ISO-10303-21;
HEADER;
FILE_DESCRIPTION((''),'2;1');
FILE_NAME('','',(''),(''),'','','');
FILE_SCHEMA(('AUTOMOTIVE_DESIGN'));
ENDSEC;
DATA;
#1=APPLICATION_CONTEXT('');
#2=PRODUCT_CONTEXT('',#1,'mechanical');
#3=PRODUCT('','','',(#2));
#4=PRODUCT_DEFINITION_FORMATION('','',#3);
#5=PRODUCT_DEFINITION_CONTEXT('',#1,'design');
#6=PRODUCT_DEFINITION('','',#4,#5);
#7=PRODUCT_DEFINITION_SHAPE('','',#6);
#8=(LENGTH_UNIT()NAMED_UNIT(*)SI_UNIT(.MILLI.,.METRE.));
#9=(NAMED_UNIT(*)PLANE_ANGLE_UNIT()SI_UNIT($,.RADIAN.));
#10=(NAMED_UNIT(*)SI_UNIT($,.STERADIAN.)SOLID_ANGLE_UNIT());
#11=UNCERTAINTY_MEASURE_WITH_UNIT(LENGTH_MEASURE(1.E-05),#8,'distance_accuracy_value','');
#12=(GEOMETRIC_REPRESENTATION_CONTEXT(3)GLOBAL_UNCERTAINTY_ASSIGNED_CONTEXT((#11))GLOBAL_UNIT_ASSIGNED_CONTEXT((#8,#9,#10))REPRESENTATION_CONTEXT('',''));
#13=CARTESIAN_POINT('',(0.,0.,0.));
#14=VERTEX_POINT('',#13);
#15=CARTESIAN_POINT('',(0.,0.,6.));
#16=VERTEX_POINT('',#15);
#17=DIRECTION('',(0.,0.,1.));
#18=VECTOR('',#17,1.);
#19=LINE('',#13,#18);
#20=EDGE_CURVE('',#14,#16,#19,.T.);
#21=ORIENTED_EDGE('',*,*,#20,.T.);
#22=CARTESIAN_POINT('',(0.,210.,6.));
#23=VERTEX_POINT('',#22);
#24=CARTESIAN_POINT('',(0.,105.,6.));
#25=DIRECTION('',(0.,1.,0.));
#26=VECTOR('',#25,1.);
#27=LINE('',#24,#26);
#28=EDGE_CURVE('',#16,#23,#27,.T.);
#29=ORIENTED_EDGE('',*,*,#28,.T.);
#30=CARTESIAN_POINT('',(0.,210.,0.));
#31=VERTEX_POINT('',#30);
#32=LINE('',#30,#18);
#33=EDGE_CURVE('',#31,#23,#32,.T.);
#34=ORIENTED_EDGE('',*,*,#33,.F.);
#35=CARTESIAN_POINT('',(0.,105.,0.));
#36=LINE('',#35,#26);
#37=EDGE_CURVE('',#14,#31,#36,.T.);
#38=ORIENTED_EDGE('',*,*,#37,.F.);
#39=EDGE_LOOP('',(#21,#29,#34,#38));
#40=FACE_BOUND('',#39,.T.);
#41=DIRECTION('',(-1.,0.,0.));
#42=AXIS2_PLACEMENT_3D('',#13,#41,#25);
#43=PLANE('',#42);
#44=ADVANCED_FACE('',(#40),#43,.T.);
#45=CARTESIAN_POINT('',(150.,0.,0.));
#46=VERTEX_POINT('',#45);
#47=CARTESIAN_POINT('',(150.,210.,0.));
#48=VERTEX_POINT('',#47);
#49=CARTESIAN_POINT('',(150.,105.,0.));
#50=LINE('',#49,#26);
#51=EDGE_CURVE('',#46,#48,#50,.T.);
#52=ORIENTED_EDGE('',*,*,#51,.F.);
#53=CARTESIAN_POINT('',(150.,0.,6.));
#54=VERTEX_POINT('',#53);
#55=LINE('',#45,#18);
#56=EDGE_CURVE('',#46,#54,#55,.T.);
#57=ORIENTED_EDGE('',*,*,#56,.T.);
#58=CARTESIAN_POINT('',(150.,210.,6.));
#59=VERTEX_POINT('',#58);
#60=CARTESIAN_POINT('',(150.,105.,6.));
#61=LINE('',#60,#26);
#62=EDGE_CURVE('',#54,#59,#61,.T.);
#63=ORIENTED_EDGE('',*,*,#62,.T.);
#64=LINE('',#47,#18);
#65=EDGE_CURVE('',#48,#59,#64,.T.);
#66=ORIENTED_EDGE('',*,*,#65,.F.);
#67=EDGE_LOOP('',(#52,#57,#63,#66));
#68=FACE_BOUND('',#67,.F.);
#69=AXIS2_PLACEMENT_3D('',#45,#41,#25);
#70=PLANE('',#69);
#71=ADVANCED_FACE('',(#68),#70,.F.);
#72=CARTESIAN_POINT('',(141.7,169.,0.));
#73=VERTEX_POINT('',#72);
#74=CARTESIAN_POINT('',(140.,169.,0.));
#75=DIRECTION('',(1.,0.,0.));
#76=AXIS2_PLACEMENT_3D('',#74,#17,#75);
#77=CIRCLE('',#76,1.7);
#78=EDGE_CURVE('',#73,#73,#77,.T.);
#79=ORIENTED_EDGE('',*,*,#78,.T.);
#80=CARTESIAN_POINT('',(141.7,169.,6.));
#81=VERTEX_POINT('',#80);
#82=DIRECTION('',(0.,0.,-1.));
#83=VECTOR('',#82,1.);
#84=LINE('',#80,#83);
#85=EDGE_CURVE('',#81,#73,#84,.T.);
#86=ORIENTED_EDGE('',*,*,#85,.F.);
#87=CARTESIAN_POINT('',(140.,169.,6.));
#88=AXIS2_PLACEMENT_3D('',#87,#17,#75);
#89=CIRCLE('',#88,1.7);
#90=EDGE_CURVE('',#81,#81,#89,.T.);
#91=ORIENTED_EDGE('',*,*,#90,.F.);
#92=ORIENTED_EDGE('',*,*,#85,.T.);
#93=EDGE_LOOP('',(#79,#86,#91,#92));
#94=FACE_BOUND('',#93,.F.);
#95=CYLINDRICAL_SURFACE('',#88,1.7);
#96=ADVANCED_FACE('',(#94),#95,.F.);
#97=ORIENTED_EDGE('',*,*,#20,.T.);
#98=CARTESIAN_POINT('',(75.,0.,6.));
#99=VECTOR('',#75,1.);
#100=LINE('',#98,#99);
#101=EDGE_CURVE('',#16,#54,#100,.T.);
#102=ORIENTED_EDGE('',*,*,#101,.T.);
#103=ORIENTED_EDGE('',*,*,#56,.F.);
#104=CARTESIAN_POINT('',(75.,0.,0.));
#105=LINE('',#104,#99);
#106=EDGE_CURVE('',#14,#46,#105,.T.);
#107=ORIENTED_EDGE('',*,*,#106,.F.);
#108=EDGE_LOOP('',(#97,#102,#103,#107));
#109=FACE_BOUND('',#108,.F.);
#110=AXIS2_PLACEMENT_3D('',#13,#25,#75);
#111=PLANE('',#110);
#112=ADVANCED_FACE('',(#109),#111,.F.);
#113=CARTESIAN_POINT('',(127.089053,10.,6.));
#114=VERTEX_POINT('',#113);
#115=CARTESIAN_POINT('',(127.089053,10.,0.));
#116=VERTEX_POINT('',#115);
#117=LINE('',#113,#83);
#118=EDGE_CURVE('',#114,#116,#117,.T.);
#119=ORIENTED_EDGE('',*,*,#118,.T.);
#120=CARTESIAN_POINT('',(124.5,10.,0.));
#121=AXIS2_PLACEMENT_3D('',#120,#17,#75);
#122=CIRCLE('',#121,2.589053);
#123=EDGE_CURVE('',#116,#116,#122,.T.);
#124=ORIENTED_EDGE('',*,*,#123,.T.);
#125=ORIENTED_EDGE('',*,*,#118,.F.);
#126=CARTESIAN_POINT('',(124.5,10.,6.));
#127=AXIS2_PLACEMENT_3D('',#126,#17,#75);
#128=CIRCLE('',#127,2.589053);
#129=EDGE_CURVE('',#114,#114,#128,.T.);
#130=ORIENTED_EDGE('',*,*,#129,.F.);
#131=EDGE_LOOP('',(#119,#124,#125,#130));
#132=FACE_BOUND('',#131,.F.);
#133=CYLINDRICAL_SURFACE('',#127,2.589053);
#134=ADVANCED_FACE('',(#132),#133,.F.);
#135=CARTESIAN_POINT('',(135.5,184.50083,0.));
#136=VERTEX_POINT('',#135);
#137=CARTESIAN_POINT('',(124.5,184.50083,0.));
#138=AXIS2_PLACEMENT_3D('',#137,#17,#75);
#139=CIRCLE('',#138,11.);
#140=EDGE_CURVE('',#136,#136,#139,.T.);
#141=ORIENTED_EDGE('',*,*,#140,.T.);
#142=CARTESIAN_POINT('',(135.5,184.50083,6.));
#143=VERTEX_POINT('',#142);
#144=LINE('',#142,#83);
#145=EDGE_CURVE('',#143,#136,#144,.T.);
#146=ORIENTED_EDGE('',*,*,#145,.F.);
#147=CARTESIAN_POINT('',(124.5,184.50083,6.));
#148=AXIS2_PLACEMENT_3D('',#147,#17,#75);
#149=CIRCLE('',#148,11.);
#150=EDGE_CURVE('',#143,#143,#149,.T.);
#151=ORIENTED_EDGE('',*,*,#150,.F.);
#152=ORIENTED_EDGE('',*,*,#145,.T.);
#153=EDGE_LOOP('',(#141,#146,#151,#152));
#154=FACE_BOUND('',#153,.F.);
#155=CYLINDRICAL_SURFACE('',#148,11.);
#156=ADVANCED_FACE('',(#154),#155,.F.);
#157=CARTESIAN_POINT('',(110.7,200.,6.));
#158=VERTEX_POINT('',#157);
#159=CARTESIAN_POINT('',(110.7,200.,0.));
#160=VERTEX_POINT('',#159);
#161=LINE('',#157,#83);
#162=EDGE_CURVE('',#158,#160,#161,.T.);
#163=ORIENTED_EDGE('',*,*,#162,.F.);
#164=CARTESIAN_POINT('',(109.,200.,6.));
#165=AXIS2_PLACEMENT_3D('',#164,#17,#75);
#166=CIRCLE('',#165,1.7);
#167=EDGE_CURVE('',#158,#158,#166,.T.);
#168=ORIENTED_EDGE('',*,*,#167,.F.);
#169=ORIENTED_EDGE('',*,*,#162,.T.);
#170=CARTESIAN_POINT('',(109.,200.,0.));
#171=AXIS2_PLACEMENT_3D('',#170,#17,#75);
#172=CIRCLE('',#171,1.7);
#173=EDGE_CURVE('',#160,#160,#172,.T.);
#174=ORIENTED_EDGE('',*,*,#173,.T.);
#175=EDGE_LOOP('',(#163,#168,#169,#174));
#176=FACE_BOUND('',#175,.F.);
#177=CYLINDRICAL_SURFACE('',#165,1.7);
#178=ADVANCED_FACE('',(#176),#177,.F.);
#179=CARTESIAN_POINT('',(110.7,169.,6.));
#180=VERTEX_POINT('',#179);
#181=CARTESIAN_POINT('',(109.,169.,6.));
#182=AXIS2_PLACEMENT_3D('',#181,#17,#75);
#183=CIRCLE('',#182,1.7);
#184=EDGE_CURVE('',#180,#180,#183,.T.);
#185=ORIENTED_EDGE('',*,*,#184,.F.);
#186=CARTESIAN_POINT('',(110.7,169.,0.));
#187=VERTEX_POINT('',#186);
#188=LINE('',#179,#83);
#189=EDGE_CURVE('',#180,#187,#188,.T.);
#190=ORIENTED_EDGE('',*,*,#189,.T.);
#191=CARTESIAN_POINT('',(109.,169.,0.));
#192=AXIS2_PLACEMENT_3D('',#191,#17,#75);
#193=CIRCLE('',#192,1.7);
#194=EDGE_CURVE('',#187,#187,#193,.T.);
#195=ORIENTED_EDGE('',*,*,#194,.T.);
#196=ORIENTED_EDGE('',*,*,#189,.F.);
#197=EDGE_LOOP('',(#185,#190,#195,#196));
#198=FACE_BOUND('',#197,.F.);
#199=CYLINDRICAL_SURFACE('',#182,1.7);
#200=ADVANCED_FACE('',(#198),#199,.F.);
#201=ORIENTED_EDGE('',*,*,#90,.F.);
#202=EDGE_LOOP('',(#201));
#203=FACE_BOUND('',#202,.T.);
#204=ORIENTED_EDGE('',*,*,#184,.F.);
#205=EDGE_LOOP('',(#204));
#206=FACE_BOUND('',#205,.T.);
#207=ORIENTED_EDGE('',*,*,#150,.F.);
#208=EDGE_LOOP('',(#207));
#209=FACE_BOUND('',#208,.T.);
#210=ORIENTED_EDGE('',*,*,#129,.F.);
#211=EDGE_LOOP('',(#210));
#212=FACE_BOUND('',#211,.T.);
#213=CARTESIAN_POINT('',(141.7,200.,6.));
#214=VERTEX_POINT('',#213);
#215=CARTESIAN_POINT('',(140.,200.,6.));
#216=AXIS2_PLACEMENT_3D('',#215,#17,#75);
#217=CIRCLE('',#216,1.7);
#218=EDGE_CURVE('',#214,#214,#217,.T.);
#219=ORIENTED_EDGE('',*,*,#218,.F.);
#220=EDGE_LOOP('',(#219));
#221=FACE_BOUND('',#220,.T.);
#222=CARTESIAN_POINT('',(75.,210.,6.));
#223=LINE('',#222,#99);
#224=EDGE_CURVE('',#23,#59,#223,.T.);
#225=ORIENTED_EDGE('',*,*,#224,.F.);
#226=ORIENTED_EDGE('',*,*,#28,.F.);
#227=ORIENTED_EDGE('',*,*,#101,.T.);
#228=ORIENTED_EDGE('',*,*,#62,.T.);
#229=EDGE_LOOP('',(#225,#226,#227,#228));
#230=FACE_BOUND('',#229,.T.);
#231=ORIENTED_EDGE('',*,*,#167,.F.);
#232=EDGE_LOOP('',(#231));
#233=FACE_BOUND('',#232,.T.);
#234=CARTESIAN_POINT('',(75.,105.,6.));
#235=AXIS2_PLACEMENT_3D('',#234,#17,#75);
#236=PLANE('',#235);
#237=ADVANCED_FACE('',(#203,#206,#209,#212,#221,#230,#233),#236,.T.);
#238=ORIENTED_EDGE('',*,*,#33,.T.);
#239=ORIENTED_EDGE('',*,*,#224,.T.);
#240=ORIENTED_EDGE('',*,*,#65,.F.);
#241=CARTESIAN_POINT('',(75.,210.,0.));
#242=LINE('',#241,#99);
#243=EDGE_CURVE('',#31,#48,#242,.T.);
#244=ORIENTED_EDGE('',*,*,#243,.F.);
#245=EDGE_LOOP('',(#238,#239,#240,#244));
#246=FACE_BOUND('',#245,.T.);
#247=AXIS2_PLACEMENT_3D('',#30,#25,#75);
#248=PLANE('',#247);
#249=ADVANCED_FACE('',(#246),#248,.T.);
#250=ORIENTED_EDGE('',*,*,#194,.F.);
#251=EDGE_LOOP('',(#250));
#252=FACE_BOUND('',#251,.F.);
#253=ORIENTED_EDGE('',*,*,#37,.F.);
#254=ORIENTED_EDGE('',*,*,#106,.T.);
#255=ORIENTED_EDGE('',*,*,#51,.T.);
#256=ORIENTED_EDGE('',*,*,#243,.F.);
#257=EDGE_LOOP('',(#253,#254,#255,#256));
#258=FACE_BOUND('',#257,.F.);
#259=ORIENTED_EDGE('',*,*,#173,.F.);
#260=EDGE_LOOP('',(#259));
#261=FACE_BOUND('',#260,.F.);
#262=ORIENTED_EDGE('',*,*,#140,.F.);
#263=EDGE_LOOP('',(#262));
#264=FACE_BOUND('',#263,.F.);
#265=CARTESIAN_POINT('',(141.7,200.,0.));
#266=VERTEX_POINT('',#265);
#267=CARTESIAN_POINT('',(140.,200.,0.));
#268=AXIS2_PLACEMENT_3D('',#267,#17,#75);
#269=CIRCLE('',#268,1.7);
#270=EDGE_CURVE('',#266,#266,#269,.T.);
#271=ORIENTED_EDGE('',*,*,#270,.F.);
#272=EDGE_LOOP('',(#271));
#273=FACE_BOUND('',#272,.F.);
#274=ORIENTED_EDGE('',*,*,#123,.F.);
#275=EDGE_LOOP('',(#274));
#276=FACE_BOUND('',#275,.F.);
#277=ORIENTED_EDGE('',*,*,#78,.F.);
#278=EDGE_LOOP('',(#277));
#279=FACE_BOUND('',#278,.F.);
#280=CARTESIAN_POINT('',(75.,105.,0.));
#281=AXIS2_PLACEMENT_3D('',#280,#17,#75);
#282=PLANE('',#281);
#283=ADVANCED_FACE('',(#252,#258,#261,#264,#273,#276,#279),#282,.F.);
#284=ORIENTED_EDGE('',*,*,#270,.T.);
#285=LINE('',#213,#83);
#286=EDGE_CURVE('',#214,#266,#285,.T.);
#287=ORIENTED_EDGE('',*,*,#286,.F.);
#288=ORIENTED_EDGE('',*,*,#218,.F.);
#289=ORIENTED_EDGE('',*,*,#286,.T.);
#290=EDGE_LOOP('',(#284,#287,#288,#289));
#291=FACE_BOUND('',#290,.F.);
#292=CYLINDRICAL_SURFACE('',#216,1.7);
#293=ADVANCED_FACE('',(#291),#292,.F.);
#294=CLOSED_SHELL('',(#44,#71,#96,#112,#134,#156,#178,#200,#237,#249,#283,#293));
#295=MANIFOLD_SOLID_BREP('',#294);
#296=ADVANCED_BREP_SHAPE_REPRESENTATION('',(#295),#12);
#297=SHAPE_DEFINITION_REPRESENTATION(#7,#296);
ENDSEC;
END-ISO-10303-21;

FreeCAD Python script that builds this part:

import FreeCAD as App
import Part
import Sketcher
Q = App.Units.Quantity


def add_polygon(sketch, points):
    """Adds a closed chain of lines whose ends are joined by coincident constraints."""
    first, n = sketch.GeometryCount, len(points)
    for a, b in zip(points, points[1:] + points[:1]):
        sketch.addGeometry(Part.LineSegment(App.Vector(*a, 0), App.Vector(*b, 0)), False)
    for i in range(n):
        sketch.addConstraint(Sketcher.Constraint("Coincident", first + i, 2, first + (i + 1) % n, 1))

doc = App.newDocument("Part")
body = doc.addObject("PartDesign::Body", "Body")

sketch1 = doc.addObject("Sketcher::SketchObject", "Sketch")
body.addObject(sketch1)
sketch1.AttachmentSupport = (doc.XY_Plane, [""])
sketch1.MapMode = "FlatFace"
add_polygon(sketch1, [(0, 210), (0, 0), (150, 0), (150, 210)])
sketch1.addConstraint(Sketcher.Constraint("Vertical", 0))
sketch1.addConstraint(Sketcher.Constraint("Horizontal", 1))
sketch1.addConstraint(Sketcher.Constraint("Vertical", 2))
sketch1.addConstraint(Sketcher.Constraint("Horizontal", 3))
sketch1.addConstraint(Sketcher.Constraint("Coincident", 0, 2, -1, 1))
sketch1.addConstraint(Sketcher.Constraint("DistanceX", 1, 1, 1, 2, Q("150 mm")))
sketch1.addConstraint(Sketcher.Constraint("DistanceY", 0, 2, 0, 1, Q("210 mm")))
pad1 = doc.addObject("PartDesign::Pad", "Pad")
body.addObject(pad1)
pad1.Profile = sketch1
pad1.Length = 6

sketch2 = doc.addObject("Sketcher::SketchObject", "Sketch001")
body.addObject(sketch2)
sketch2.AttachmentSupport = (doc.XY_Plane, [""])
sketch2.MapMode = "FlatFace"
sketch2.AttachmentOffset = App.Placement(App.Vector(0, 0, 6), App.Rotation())
sketch2.addGeometry(Part.Circle(App.Vector(140, 200, 0), App.Vector(0, 0, 1), 1.7), False)
sketch2.addGeometry(Part.Circle(App.Vector(109, 200, 0), App.Vector(0, 0, 1), 1.7), False)
sketch2.addGeometry(Part.Circle(App.Vector(109, 169, 0), App.Vector(0, 0, 1), 1.7), False)
sketch2.addGeometry(Part.Circle(App.Vector(140, 169, 0), App.Vector(0, 0, 1), 1.7), False)
sketch2.addGeometry(Part.Circle(App.Vector(124.5, 184.5, 0), App.Vector(0, 0, 1), 11), False)
sketch2.addGeometry(Part.Circle(App.Vector(124.5, 10, 0), App.Vector(0, 0, 1), 2.6), False)
sketch2.addConstraint(Sketcher.Constraint("Equal", 0, 1))
sketch2.addConstraint(Sketcher.Constraint("Equal", 1, 2))
sketch2.addConstraint(Sketcher.Constraint("Equal", 2, 3))
sketch2.addConstraint(Sketcher.Constraint("Horizontal", 0, 3, 1, 3))
sketch2.addConstraint(Sketcher.Constraint("Horizontal", 2, 3, 3, 3))
sketch2.addConstraint(Sketcher.Constraint("Vertical", 1, 3, 2, 3))
sketch2.addConstraint(Sketcher.Constraint("Vertical", 0, 3, 3, 3))
sketch2.addConstraint(Sketcher.Constraint("Vertical", 4, 3, 5, 3))
sketch2.addConstraint(Sketcher.Constraint("Diameter", 4, Q("22 mm")))
sketch2.addConstraint(Sketcher.Constraint("Diameter", 0, Q("3.4 mm")))
sketch2.addConstraint(Sketcher.Constraint("DistanceX", -1, 1, 0, 3, Q("140 mm")))
sketch2.addConstraint(Sketcher.Constraint("DistanceY", -1, 1, 0, 3, Q("200 mm")))
sketch2.addConstraint(Sketcher.Constraint("DistanceX", -1, 1, 1, 3, Q("109 mm")))
sketch2.addConstraint(Sketcher.Constraint("DistanceY", -1, 1, 2, 3, Q("169 mm")))
sketch2.addConstraint(Sketcher.Constraint("DistanceY", -1, 1, 5, 3, Q("10 mm")))
sketch2.addConstraint(Sketcher.Constraint("DistanceX", -1, 1, 4, 3, Q("124.5 mm")))
sketch2.addConstraint(Sketcher.Constraint("Diameter", 5, Q("5.178106 mm")))
sketch2.addConstraint(Sketcher.Constraint("DistanceY", -1, 1, 4, 3, Q("184.50083 mm")))
pocket1 = doc.addObject("PartDesign::Pocket", "Pocket")
body.addObject(pocket1)
pocket1.Profile = sketch2
pocket1.Length = 6

doc.recompute()
